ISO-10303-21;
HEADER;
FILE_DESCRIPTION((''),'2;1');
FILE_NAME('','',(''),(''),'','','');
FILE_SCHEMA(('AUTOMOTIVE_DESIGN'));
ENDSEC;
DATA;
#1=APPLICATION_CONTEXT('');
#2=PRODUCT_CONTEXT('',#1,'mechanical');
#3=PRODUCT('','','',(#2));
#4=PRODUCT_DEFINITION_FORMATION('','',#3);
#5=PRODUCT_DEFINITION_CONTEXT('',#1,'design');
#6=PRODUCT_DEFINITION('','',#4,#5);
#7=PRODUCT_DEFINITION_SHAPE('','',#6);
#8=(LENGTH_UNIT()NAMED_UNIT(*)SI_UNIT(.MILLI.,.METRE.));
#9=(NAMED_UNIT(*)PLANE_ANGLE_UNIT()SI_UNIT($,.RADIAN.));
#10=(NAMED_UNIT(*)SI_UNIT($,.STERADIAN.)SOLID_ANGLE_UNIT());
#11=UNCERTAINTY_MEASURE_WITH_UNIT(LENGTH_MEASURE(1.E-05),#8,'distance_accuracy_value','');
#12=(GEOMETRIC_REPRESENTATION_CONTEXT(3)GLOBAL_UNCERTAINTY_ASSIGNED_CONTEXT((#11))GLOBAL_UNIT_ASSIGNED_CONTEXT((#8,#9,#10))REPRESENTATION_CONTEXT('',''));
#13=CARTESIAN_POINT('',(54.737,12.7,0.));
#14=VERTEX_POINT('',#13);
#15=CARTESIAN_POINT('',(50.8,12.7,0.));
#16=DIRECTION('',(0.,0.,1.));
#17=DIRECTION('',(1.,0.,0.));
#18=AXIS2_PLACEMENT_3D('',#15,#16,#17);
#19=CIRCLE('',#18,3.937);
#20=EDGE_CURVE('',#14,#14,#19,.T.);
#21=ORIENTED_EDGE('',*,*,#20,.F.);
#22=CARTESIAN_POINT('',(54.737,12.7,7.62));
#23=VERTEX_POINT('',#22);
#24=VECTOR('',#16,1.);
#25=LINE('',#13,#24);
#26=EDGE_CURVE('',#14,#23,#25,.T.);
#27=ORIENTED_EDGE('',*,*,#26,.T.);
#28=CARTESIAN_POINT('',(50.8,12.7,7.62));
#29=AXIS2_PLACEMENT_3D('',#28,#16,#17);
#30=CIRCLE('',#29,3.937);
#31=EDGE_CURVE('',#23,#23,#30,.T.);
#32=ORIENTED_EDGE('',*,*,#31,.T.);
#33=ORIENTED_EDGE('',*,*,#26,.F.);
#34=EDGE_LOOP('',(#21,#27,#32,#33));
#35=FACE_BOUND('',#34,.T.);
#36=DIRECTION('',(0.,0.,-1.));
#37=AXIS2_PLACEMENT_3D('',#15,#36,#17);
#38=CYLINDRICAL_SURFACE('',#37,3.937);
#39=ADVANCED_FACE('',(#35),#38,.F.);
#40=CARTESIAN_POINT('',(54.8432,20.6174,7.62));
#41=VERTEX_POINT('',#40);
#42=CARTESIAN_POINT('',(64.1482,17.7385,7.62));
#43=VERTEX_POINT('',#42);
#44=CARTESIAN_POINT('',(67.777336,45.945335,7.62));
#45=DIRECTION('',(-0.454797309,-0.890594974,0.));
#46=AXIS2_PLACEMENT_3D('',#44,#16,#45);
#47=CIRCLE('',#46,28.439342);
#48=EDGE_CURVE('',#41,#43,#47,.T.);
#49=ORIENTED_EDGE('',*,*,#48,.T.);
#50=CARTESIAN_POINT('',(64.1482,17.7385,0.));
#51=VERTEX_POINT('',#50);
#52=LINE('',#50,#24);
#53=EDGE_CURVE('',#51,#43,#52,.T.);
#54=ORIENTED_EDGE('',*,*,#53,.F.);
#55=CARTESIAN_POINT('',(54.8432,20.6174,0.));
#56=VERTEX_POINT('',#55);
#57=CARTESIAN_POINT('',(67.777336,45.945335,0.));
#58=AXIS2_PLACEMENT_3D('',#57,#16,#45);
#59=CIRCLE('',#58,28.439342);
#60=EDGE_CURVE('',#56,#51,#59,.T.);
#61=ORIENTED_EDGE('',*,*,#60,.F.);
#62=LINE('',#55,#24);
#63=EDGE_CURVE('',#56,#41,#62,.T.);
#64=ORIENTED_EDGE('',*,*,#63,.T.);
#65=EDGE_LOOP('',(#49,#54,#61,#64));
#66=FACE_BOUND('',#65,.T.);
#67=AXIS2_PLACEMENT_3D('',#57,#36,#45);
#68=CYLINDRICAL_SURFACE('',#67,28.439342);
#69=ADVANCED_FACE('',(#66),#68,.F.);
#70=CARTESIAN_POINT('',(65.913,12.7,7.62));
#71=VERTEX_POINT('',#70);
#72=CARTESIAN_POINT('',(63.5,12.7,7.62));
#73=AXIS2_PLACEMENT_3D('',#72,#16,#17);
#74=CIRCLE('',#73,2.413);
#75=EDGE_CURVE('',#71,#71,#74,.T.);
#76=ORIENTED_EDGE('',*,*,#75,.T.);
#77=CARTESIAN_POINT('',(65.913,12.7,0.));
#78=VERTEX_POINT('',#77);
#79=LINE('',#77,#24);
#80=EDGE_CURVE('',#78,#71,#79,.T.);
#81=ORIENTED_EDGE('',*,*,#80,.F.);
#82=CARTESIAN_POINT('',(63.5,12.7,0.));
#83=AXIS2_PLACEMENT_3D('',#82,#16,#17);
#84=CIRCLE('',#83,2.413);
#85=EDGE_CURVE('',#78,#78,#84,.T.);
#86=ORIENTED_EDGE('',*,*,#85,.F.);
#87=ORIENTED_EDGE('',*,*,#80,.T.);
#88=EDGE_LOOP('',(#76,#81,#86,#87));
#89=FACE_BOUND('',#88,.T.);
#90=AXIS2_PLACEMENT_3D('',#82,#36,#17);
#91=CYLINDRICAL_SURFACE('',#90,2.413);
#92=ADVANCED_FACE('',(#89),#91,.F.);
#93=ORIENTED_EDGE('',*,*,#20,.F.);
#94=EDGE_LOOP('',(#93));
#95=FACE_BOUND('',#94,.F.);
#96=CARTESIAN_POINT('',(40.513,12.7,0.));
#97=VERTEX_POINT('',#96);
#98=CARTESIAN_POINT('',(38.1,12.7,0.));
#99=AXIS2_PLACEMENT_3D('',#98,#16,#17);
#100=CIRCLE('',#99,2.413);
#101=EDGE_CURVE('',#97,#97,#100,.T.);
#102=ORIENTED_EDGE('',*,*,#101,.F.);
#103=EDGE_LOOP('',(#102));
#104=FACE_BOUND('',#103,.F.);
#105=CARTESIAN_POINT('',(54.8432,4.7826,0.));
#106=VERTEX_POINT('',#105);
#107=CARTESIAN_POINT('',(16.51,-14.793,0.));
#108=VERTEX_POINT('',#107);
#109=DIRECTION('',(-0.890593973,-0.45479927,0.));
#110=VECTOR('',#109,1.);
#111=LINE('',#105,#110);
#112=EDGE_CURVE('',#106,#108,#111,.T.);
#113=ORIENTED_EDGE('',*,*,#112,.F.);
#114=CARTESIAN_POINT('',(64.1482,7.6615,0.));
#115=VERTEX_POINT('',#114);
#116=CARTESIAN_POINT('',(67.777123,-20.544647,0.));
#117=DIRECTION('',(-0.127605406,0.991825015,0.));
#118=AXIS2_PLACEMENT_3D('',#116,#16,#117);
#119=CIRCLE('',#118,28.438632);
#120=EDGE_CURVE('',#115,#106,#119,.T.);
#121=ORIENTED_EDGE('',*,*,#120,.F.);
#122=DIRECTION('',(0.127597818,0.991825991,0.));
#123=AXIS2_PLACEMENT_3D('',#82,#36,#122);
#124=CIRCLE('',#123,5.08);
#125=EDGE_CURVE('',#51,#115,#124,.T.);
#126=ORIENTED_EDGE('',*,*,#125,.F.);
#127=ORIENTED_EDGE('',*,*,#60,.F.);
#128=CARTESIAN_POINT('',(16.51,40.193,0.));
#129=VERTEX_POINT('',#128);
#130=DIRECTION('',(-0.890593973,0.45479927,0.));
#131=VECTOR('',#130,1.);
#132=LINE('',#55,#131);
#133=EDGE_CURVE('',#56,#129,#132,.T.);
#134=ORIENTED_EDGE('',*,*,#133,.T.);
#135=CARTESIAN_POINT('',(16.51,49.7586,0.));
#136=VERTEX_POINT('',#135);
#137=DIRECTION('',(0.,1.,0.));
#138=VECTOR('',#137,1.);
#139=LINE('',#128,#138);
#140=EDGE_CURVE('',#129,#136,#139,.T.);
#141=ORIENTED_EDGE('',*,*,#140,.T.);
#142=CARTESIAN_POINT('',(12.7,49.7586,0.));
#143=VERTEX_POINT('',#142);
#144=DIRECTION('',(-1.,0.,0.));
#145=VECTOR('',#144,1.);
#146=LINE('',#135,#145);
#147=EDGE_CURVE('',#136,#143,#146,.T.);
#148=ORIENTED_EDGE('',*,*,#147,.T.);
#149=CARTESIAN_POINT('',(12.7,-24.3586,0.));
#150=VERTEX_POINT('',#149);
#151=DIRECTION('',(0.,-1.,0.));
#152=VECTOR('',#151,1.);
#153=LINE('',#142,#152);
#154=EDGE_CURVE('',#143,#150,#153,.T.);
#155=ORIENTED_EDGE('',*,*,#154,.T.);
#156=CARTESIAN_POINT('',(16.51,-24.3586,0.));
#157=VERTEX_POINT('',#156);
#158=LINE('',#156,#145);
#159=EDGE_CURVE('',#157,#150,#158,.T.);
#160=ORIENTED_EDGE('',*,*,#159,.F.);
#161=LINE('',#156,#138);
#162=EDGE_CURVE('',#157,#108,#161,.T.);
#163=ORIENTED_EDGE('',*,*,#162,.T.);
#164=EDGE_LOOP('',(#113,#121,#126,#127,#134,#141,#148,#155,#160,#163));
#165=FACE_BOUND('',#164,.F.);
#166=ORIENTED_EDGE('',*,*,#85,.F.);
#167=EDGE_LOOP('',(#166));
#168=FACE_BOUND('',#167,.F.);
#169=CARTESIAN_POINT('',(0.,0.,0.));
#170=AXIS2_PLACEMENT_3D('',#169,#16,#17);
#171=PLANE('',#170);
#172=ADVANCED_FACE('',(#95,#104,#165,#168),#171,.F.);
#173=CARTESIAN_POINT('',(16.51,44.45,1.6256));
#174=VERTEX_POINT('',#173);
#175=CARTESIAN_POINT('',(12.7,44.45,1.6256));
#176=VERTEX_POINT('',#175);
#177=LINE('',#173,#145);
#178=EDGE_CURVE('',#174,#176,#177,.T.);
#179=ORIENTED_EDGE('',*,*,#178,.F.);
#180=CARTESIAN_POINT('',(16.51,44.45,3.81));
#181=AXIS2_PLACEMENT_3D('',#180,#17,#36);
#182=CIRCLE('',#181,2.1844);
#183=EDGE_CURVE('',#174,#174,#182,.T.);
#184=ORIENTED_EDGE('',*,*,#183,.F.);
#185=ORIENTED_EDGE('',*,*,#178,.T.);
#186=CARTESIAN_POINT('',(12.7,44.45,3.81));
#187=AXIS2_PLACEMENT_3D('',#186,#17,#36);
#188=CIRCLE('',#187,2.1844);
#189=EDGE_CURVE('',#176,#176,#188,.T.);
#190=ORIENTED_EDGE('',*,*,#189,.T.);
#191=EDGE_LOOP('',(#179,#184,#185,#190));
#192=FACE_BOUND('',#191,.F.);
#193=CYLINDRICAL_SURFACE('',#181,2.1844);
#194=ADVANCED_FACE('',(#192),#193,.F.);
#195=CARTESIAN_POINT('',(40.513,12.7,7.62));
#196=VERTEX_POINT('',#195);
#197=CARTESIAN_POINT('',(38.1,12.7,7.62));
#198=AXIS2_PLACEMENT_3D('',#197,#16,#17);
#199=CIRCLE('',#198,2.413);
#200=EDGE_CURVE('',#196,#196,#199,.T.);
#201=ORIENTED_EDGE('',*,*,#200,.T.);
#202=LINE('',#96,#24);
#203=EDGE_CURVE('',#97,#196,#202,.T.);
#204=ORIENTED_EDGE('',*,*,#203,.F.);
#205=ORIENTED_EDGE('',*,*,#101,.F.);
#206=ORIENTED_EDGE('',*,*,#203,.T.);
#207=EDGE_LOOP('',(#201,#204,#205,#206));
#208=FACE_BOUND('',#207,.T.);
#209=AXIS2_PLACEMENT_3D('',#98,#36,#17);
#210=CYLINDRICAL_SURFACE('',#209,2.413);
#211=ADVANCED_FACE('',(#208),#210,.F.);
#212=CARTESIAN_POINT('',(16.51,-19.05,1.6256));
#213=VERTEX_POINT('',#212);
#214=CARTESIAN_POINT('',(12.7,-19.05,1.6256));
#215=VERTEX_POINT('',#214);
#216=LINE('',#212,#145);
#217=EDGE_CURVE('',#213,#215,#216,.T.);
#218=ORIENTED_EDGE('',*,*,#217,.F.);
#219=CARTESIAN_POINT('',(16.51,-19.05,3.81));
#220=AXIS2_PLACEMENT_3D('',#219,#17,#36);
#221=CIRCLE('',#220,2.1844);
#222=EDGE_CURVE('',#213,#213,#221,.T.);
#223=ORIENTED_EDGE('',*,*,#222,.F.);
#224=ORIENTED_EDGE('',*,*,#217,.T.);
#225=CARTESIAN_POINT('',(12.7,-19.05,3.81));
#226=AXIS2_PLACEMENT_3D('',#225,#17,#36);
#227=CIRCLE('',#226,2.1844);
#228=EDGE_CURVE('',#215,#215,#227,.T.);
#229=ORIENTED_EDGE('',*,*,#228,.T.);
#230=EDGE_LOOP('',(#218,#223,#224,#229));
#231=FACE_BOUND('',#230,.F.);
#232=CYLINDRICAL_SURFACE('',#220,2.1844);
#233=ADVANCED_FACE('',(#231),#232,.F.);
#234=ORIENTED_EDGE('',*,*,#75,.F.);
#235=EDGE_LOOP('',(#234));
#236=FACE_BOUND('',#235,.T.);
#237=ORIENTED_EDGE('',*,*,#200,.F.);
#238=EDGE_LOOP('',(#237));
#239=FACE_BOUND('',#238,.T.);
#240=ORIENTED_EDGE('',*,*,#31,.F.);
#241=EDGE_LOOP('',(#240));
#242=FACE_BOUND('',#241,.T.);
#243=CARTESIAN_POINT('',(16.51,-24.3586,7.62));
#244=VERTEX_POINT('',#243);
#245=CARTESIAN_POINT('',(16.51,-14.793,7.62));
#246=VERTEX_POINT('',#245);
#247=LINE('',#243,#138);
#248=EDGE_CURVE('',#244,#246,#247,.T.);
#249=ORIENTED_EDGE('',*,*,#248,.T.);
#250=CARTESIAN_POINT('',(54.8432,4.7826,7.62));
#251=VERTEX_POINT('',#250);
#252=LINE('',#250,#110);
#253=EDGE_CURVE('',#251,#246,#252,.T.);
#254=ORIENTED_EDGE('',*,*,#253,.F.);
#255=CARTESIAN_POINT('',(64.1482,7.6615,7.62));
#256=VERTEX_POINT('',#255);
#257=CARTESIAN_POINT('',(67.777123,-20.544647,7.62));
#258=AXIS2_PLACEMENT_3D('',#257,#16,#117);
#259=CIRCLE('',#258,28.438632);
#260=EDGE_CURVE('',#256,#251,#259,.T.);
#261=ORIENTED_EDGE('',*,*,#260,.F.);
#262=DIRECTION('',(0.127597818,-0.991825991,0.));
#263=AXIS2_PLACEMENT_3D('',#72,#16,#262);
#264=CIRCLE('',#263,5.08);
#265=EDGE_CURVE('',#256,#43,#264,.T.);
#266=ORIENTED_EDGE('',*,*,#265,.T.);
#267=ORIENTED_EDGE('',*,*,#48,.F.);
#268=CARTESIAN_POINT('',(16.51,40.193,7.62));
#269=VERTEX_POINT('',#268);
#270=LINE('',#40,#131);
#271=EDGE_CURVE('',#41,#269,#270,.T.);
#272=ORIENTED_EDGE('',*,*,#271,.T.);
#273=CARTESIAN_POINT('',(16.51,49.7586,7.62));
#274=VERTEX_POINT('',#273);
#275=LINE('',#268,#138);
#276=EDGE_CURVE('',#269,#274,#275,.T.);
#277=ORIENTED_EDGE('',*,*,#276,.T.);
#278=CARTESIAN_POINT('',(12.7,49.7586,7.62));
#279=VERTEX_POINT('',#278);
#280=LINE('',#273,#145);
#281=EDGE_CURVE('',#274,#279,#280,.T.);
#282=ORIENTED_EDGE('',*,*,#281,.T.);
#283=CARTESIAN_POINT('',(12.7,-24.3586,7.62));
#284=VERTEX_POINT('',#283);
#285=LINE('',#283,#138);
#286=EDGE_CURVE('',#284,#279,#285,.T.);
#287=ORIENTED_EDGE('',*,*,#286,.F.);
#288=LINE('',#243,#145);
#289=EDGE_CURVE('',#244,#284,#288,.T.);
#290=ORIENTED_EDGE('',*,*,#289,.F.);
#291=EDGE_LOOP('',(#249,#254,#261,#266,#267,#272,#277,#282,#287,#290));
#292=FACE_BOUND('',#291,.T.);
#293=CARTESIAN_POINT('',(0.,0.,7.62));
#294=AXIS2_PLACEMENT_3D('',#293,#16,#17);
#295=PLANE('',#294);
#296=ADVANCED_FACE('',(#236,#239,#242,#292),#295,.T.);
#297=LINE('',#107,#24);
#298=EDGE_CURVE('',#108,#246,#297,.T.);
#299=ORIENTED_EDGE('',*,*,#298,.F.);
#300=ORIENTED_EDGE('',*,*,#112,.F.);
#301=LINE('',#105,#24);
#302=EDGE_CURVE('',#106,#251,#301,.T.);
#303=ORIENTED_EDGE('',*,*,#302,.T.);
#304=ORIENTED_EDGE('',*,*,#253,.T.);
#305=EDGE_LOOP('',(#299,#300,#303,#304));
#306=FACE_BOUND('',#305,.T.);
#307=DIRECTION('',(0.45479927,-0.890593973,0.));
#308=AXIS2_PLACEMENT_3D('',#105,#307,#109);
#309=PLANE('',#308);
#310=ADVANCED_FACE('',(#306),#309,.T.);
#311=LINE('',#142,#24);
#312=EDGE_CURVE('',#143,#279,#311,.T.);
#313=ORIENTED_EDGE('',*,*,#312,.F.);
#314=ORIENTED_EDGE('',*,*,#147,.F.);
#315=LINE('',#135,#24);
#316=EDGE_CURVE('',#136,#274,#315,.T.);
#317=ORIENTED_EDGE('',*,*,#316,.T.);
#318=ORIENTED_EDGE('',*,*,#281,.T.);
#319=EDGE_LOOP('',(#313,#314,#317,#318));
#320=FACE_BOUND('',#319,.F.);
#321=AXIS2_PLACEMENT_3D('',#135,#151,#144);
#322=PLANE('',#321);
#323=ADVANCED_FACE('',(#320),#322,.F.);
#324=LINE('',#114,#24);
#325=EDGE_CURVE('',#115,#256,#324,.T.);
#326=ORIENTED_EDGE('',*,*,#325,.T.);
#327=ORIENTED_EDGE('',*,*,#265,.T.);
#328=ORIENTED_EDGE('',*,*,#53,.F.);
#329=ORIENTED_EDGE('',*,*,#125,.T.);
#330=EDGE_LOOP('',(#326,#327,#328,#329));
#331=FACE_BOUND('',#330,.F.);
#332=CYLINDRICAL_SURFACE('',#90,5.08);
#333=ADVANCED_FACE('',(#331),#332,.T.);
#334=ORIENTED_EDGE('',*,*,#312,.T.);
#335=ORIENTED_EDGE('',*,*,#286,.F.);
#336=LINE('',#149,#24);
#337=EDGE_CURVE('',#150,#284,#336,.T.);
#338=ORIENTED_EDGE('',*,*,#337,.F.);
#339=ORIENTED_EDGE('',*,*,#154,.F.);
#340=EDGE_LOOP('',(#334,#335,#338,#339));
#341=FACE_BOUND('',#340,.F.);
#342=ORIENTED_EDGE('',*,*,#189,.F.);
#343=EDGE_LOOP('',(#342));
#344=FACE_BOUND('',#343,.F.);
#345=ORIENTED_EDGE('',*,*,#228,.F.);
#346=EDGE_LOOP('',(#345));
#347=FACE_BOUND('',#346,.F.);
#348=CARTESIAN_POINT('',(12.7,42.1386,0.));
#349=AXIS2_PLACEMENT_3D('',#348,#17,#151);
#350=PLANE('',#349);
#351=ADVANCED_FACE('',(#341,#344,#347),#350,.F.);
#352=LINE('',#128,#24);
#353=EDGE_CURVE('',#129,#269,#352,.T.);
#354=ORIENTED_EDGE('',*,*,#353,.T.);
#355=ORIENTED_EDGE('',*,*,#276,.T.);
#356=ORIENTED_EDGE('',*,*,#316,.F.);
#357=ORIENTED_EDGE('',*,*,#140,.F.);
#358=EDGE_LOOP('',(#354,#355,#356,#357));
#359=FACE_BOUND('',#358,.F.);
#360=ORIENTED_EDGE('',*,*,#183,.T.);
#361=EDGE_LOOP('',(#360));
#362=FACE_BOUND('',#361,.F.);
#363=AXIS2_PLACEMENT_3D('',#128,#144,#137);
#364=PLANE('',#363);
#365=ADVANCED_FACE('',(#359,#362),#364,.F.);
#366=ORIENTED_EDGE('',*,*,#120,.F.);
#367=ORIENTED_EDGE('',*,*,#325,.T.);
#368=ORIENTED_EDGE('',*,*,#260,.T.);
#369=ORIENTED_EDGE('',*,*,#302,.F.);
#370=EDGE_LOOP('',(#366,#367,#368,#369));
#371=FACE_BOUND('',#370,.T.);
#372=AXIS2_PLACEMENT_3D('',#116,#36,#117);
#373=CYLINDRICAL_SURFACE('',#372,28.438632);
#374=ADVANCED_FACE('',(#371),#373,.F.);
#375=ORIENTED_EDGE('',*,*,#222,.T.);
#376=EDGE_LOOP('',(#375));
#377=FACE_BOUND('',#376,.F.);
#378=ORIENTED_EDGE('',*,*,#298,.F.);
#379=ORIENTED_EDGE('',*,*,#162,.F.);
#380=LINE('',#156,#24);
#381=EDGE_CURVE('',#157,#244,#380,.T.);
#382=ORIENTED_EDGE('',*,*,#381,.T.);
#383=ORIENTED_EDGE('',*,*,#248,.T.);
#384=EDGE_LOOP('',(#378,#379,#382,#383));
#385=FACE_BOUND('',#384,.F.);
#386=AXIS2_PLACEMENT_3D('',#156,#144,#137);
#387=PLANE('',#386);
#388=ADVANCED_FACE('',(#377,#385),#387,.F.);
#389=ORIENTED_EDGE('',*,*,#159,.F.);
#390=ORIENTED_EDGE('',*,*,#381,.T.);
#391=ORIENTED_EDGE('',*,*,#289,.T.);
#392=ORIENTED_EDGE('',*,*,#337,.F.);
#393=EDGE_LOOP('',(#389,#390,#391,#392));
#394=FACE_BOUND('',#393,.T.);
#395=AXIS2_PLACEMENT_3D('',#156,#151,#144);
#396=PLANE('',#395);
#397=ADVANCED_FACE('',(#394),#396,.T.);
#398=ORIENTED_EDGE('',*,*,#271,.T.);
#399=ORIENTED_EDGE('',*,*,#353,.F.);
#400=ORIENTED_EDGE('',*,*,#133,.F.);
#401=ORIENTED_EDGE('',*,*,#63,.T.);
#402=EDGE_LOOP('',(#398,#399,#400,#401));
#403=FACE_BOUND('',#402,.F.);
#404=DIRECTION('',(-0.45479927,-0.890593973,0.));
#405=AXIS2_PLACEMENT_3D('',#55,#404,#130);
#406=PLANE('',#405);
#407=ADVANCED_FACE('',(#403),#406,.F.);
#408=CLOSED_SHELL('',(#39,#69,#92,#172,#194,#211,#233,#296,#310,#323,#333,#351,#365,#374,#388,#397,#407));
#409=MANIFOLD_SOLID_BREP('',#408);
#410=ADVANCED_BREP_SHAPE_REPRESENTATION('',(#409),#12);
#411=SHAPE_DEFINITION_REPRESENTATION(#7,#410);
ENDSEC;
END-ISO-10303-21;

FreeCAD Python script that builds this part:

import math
import FreeCAD as App
import Part
import Sketcher

V = App.Vector
Q = App.Units.Quantity

doc = App.newDocument("Part")
body = doc.addObject("PartDesign::Body", "Body")

# Sketch on XY plane
sketch1 = doc.addObject("Sketcher::SketchObject", "Sketch")
body.addObject(sketch1)
sketch1.AttachmentSupport = (doc.XY_Plane, [""])
sketch1.MapMode = "FlatFace"
sketch1.addGeometry(Part.LineSegment(V(12.7, -24.4, 0), V(16.5, -24.4, 0)), False)
sketch1.addGeometry(Part.LineSegment(V(16.5, -24.4, 0), V(16.5, -14.8, 0)), False)
sketch1.addGeometry(Part.LineSegment(V(16.5, -14.8, 0), V(54.8, 4.8, 0)), False)
sketch1.addGeometry(Part.ArcOfCircle(Part.Circle(V(67.8, -20.5, 0), V(0, 0, 1), 28.4), math.radians(97.33), math.radians(117.05)), False)
sketch1.addGeometry(Part.ArcOfCircle(Part.Circle(V(63.5, 12.7, 0), V(0, 0, 1), 5.1), math.radians(-83), math.radians(83)), False)
sketch1.addGeometry(Part.ArcOfCircle(Part.Circle(V(67.8, 45.9, 0), V(0, 0, 1), 28.4), math.radians(-117.05), math.radians(-97.33)), False)
sketch1.addGeometry(Part.LineSegment(V(54.8, 20.6, 0), V(16.5, 40.2, 0)), False)
sketch1.addGeometry(Part.LineSegment(V(16.5, 40.2, 0), V(16.5, 49.8, 0)), False)
sketch1.addGeometry(Part.LineSegment(V(16.5, 49.8, 0), V(12.7, 49.8, 0)), False)
sketch1.addGeometry(Part.LineSegment(V(12.7, 49.8, 0), V(12.7, -24.4, 0)), False)
sketch1.addGeometry(Part.Circle(V(38.1, 12.7, 0), V(0, 0, 1), 2.4), False)
sketch1.addGeometry(Part.Circle(V(50.8, 12.7, 0), V(0, 0, 1), 3.9), False)
sketch1.addGeometry(Part.Circle(V(63.5, 12.7, 0), V(0, 0, 1), 2.4), False)
sketch1.addConstraint(Sketcher.Constraint("Coincident", 0, 2, 1, 1))
sketch1.addConstraint(Sketcher.Constraint("Coincident", 1, 2, 2, 1))
sketch1.addConstraint(Sketcher.Constraint("Tangent", 2, 2, 3, 2))
sketch1.addConstraint(Sketcher.Constraint("Tangent", 3, 1, 4, 1))
sketch1.addConstraint(Sketcher.Constraint("Tangent", 4, 2, 5, 2))
sketch1.addConstraint(Sketcher.Constraint("Tangent", 5, 1, 6, 1))
sketch1.addConstraint(Sketcher.Constraint("Coincident", 6, 2, 7, 1))
sketch1.addConstraint(Sketcher.Constraint("Coincident", 7, 2, 8, 1))
sketch1.addConstraint(Sketcher.Constraint("Coincident", 8, 2, 9, 1))
sketch1.addConstraint(Sketcher.Constraint("Coincident", 9, 2, 0, 1))
sketch1.addConstraint(Sketcher.Constraint("Horizontal", 0))
sketch1.addConstraint(Sketcher.Constraint("Vertical", 1))
sketch1.addConstraint(Sketcher.Constraint("Vertical", 7))
sketch1.addConstraint(Sketcher.Constraint("Horizontal", 8))
sketch1.addConstraint(Sketcher.Constraint("Vertical", 9))
sketch1.addConstraint(Sketcher.Constraint("Coincident", 12, 3, 4, 3))
sketch1.addConstraint(Sketcher.Constraint("Equal", 3, 5))
sketch1.addConstraint(Sketcher.Constraint("Equal", 10, 12))
sketch1.addConstraint(Sketcher.Constraint("Horizontal", 4, 3, 10, 3))
sketch1.addConstraint(Sketcher.Constraint("Horizontal", 10, 3, 11, 3))
sketch1.addConstraint(Sketcher.Constraint("Vertical", 3, 3, 5, 3))
sketch1.addConstraint(Sketcher.Constraint("Vertical", 2, 2, 5, 1))
sketch1.addConstraint(Sketcher.Constraint("Vertical", 1, 2, 6, 2))
sketch1.addConstraint(Sketcher.Constraint("Equal", 1, 7))
sketch1.addConstraint(Sketcher.Constraint("Radius", 4, Q("0.2 in")))
sketch1.addConstraint(Sketcher.Constraint("Diameter", 10, Q("0.19 in")))
sketch1.addConstraint(Sketcher.Constraint("Diameter", 11, Q("0.31 in")))
sketch1.addConstraint(Sketcher.Constraint("DistanceX", -1, 1, 11, 3, Q("2 in")))
sketch1.addConstraint(Sketcher.Constraint("DistanceX", 0, 1, 0, 2, Q("0.15 in")))
sketch1.addConstraint(Sketcher.Constraint("DistanceY", -1, 1, 4, 3, Q("0.5 in")))
sketch1.addConstraint(Sketcher.Constraint("DistanceX", -1, 1, 8, 2, Q("0.5 in")))
sketch1.addConstraint(Sketcher.Constraint("DistanceX", 10, 3, 11, 3, Q("0.5 in")))
sketch1.addConstraint(Sketcher.Constraint("DistanceX", 11, 3, 4, 3, Q("0.5 in")))
sketch1.addConstraint(Sketcher.Constraint("DistanceY", 9, 2, 9, 1, Q("2.918 in")))
sketch1.addConstraint(Sketcher.Constraint("Radius", 3, Q("28.439 mm")))
sketch1.addConstraint(Sketcher.Constraint("DistanceY", 1, 1, 1, 2, Q("0.3766 in")))
sketch1.addConstraint(Sketcher.Constraint("DistanceX", -1, 1, 3, 3, Q("2.6684 in")))
pad1 = doc.addObject("PartDesign::Pad", "Pad")
body.addObject(pad1)
pad1.Profile = sketch1
pad1.Length = Q("0.3 in")

# Sketch on YZ plane
sketch2 = doc.addObject("Sketcher::SketchObject", "Sketch001")
body.addObject(sketch2)
sketch2.AttachmentSupport = (doc.YZ_Plane, [""])
sketch2.MapMode = "FlatFace"
sketch2.AttachmentOffset = App.Placement(V(0, 0, 0.65 * 25.4), App.Rotation())
sketch2.addGeometry(Part.Circle(V(-19.1, 3.8, 0), V(0, 0, 1), 2.2), False)
sketch2.addGeometry(Part.Circle(V(44.5, 3.8, 0), V(0, 0, 1), 2.2), False)
sketch2.addConstraint(Sketcher.Constraint("Equal", 0, 1))
sketch2.addConstraint(Sketcher.Constraint("Horizontal", 0, 3, 1, 3))
sketch2.addConstraint(Sketcher.Constraint("Diameter", 0, Q("0.172 in")))
sketch2.addConstraint(Sketcher.Constraint("DistanceX", 0, 3, 1, 3, Q("2.5 in")))
sketch2.addConstraint(Sketcher.Constraint("DistanceX", 0, 3, -1, 1, Q("0.75 in")))
sketch2.addConstraint(Sketcher.Constraint("DistanceY", -1, 1, 0, 3, Q("0.15 in")))
pocket1 = doc.addObject("PartDesign::Pocket", "Pocket")
body.addObject(pocket1)
pocket1.Profile = sketch2
pocket1.Length = Q("0.25 in")

doc.recompute()
